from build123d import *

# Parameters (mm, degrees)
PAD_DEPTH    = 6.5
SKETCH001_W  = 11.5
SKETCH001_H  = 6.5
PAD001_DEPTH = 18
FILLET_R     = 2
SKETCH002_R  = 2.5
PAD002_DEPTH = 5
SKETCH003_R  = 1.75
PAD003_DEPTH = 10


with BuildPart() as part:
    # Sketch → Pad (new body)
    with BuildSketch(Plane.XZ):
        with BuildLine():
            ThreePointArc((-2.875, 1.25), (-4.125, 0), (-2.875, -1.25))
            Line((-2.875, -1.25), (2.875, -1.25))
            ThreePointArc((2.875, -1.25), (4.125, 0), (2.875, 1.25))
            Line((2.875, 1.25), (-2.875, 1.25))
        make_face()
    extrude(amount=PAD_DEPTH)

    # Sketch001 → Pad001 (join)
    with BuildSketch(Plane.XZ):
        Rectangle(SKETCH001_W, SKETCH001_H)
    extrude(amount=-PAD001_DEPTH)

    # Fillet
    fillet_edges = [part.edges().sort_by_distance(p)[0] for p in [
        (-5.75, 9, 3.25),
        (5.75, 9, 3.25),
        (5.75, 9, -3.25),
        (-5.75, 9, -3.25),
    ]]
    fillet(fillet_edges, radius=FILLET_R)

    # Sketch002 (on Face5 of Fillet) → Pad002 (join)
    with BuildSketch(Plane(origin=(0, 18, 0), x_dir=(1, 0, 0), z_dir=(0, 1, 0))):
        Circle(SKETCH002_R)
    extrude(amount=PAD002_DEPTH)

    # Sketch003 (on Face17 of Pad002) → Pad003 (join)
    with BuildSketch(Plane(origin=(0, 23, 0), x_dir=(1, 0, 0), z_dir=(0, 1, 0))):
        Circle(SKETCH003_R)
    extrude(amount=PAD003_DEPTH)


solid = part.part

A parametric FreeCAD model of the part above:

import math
import FreeCAD as App
import Part
import Sketcher

V = App.Vector


def edges_at(feature, points):
    """Names of the edges that pass closest to the given points."""
    edges = feature.Shape.Edges
    near = lambda p: min(range(len(edges)), key=lambda i: edges[i].distToShape(Part.Vertex(*p))[0])
    return sorted({f"Edge{near(p) + 1}" for p in points})


def add_polygon(sketch, points):
    """Adds a closed chain of lines whose ends are joined by coincident constraints."""
    first, n = sketch.GeometryCount, len(points)
    for a, b in zip(points, points[1:] + points[:1]):
        sketch.addGeometry(Part.LineSegment(App.Vector(*a, 0), App.Vector(*b, 0)), False)
    for i in range(n):
        sketch.addConstraint(Sketcher.Constraint("Coincident", first + i, 2, first + (i + 1) % n, 1))

doc = App.newDocument("Part")
params = doc.addObject("Spreadsheet::Sheet", "Params")
for row, (alias, value) in enumerate([
    ("sketch1_radius", "1.25 mm"),
    ("sketch1_width", "5.75 mm"),
    ("pad1_length", "6.5 mm"),
    ("sketch2_width", "11.5 mm"),
    ("sketch2_height", "6.5 mm"),
    ("pad2_length", "18 mm"),
    ("fillet_radius", "2 mm"),
    ("sketch3_diameter", "5 mm"),
    ("pad3_length", "5 mm"),
    ("sketch4_diameter", "3.5 mm"),
    ("pad4_length", "10 mm"),
], start=1):
    params.set(f"A{row}", alias)
    params.set(f"B{row}", "=" + value)
    params.setAlias(f"B{row}", alias)

body = doc.addObject("PartDesign::Body", "Body")

# Sketch on XZ plane
sketch1 = body.newObject("Sketcher::SketchObject", "Sketch")
sketch1.AttachmentSupport = (doc.getObject("XZ_Plane"), [""])
sketch1.MapMode = "FlatFace"
sketch1.addGeometry([
    Part.ArcOfCircle(Part.Circle(V(-2.9, 0, 0), V(0, 0, 1), 1.2), math.radians(90), math.radians(270)),
    Part.LineSegment(V(-2.9, -1.2, 0), V(2.9, -1.2, 0)),
    Part.ArcOfCircle(Part.Circle(V(2.9, 0, 0), V(0, 0, 1), 1.2), math.radians(-90), math.radians(90)),
    Part.LineSegment(V(2.9, 1.2, 0), V(-2.9, 1.2, 0)),
], False)
sketch1.addConstraint([
    Sketcher.Constraint("Tangent", 0, 2, 1, 1),
    Sketcher.Constraint("Tangent", 1, 2, 2, 1),
    Sketcher.Constraint("Tangent", 2, 2, 3, 1),
    Sketcher.Constraint("Tangent", 3, 2, 0, 1),
    Sketcher.Constraint("Horizontal", 1),
    Sketcher.Constraint("Horizontal", 3),
    Sketcher.Constraint("Symmetric", 0, 3, 2, 3, -1, 1),
    Sketcher.Constraint("Radius", 0, 1.25),
    Sketcher.Constraint("DistanceX", 1, 1, 1, 2, 5.75),
])
sketch1.setExpression("Constraints[7]", "Params.sketch1_radius")
sketch1.setExpression("Constraints[8]", "Params.sketch1_width")
pad1 = body.newObject("PartDesign::Pad", "Pad")
pad1.Profile = sketch1
pad1.setExpression("Length", "Params.pad1_length")

# Sketch on XZ plane
sketch2 = body.newObject("Sketcher::SketchObject", "Sketch001")
sketch2.AttachmentSupport = (doc.getObject("XZ_Plane"), [""])
sketch2.MapMode = "FlatFace"
add_polygon(sketch2, [(-6, 3), (-6, -3), (6, -3), (6, 3)])  # lines 0-3
sketch2.addConstraint([
    Sketcher.Constraint("Vertical", 0),
    Sketcher.Constraint("Horizontal", 1),
    Sketcher.Constraint("Vertical", 2),
    Sketcher.Constraint("Horizontal", 3),
    Sketcher.Constraint("Symmetric", 0, 2, 2, 2, -1, 1),
    Sketcher.Constraint("DistanceX", 1, 1, 1, 2, 11.5),
    Sketcher.Constraint("DistanceY", 0, 2, 0, 1, 6.5),
])
sketch2.setExpression("Constraints[9]", "Params.sketch2_width")
sketch2.setExpression("Constraints[10]", "Params.sketch2_height")
pad2 = body.newObject("PartDesign::Pad", "Pad001")
pad2.Profile = sketch2
pad2.setExpression("Length", "Params.pad2_length")
pad2.Reversed = True
doc.recompute()

fillet = body.newObject("PartDesign::Fillet", "Fillet")
fillet.Base = (pad2, edges_at(pad2, [
    (-5.75, 9, 3.25),
    (5.75, 9, 3.25),
    (5.75, 9, -3.25),
    (-5.75, 9, -3.25),
]))
fillet.setExpression("Radius", "Params.fillet_radius")

# Sketch on XZ plane
sketch3 = body.newObject("Sketcher::SketchObject", "Sketch002")
sketch3.AttachmentSupport = (doc.getObject("XZ_Plane"), [""])
sketch3.MapMode = "FlatFace"
sketch3.AttachmentOffset = App.Placement(V(0, 0, -18), App.Rotation())
sketch3.addGeometry(Part.Circle(V(0, 0, 0), V(0, 0, 1), 2.5), False)
sketch3.addConstraint([
    Sketcher.Constraint("Coincident", 0, 3, -1, 1),
    Sketcher.Constraint("Diameter", 0, 5.0),
])
sketch3.setExpression("Constraints[1]", "Params.sketch3_diameter")
pad3 = body.newObject("PartDesign::Pad", "Pad002")
pad3.Profile = sketch3
pad3.setExpression("Length", "Params.pad3_length")
pad3.Reversed = True

# Sketch on XZ plane
sketch4 = body.newObject("Sketcher::SketchObject", "Sketch003")
sketch4.AttachmentSupport = (doc.getObject("XZ_Plane"), [""])
sketch4.MapMode = "FlatFace"
sketch4.AttachmentOffset = App.Placement(V(0, 0, -23), App.Rotation())
sketch4.addGeometry(Part.Circle(V(0, 0, 0), V(0, 0, 1), 1.8), False)
sketch4.addConstraint([
    Sketcher.Constraint("Coincident", 0, 3, -1, 1),
    Sketcher.Constraint("Diameter", 0, 3.5),
])
sketch4.setExpression("Constraints[1]", "Params.sketch4_diameter")
pad4 = body.newObject("PartDesign::Pad", "Pad003")
pad4.Profile = sketch4
pad4.setExpression("Length", "Params.pad4_length")
pad4.Reversed = True

doc.recompute()
